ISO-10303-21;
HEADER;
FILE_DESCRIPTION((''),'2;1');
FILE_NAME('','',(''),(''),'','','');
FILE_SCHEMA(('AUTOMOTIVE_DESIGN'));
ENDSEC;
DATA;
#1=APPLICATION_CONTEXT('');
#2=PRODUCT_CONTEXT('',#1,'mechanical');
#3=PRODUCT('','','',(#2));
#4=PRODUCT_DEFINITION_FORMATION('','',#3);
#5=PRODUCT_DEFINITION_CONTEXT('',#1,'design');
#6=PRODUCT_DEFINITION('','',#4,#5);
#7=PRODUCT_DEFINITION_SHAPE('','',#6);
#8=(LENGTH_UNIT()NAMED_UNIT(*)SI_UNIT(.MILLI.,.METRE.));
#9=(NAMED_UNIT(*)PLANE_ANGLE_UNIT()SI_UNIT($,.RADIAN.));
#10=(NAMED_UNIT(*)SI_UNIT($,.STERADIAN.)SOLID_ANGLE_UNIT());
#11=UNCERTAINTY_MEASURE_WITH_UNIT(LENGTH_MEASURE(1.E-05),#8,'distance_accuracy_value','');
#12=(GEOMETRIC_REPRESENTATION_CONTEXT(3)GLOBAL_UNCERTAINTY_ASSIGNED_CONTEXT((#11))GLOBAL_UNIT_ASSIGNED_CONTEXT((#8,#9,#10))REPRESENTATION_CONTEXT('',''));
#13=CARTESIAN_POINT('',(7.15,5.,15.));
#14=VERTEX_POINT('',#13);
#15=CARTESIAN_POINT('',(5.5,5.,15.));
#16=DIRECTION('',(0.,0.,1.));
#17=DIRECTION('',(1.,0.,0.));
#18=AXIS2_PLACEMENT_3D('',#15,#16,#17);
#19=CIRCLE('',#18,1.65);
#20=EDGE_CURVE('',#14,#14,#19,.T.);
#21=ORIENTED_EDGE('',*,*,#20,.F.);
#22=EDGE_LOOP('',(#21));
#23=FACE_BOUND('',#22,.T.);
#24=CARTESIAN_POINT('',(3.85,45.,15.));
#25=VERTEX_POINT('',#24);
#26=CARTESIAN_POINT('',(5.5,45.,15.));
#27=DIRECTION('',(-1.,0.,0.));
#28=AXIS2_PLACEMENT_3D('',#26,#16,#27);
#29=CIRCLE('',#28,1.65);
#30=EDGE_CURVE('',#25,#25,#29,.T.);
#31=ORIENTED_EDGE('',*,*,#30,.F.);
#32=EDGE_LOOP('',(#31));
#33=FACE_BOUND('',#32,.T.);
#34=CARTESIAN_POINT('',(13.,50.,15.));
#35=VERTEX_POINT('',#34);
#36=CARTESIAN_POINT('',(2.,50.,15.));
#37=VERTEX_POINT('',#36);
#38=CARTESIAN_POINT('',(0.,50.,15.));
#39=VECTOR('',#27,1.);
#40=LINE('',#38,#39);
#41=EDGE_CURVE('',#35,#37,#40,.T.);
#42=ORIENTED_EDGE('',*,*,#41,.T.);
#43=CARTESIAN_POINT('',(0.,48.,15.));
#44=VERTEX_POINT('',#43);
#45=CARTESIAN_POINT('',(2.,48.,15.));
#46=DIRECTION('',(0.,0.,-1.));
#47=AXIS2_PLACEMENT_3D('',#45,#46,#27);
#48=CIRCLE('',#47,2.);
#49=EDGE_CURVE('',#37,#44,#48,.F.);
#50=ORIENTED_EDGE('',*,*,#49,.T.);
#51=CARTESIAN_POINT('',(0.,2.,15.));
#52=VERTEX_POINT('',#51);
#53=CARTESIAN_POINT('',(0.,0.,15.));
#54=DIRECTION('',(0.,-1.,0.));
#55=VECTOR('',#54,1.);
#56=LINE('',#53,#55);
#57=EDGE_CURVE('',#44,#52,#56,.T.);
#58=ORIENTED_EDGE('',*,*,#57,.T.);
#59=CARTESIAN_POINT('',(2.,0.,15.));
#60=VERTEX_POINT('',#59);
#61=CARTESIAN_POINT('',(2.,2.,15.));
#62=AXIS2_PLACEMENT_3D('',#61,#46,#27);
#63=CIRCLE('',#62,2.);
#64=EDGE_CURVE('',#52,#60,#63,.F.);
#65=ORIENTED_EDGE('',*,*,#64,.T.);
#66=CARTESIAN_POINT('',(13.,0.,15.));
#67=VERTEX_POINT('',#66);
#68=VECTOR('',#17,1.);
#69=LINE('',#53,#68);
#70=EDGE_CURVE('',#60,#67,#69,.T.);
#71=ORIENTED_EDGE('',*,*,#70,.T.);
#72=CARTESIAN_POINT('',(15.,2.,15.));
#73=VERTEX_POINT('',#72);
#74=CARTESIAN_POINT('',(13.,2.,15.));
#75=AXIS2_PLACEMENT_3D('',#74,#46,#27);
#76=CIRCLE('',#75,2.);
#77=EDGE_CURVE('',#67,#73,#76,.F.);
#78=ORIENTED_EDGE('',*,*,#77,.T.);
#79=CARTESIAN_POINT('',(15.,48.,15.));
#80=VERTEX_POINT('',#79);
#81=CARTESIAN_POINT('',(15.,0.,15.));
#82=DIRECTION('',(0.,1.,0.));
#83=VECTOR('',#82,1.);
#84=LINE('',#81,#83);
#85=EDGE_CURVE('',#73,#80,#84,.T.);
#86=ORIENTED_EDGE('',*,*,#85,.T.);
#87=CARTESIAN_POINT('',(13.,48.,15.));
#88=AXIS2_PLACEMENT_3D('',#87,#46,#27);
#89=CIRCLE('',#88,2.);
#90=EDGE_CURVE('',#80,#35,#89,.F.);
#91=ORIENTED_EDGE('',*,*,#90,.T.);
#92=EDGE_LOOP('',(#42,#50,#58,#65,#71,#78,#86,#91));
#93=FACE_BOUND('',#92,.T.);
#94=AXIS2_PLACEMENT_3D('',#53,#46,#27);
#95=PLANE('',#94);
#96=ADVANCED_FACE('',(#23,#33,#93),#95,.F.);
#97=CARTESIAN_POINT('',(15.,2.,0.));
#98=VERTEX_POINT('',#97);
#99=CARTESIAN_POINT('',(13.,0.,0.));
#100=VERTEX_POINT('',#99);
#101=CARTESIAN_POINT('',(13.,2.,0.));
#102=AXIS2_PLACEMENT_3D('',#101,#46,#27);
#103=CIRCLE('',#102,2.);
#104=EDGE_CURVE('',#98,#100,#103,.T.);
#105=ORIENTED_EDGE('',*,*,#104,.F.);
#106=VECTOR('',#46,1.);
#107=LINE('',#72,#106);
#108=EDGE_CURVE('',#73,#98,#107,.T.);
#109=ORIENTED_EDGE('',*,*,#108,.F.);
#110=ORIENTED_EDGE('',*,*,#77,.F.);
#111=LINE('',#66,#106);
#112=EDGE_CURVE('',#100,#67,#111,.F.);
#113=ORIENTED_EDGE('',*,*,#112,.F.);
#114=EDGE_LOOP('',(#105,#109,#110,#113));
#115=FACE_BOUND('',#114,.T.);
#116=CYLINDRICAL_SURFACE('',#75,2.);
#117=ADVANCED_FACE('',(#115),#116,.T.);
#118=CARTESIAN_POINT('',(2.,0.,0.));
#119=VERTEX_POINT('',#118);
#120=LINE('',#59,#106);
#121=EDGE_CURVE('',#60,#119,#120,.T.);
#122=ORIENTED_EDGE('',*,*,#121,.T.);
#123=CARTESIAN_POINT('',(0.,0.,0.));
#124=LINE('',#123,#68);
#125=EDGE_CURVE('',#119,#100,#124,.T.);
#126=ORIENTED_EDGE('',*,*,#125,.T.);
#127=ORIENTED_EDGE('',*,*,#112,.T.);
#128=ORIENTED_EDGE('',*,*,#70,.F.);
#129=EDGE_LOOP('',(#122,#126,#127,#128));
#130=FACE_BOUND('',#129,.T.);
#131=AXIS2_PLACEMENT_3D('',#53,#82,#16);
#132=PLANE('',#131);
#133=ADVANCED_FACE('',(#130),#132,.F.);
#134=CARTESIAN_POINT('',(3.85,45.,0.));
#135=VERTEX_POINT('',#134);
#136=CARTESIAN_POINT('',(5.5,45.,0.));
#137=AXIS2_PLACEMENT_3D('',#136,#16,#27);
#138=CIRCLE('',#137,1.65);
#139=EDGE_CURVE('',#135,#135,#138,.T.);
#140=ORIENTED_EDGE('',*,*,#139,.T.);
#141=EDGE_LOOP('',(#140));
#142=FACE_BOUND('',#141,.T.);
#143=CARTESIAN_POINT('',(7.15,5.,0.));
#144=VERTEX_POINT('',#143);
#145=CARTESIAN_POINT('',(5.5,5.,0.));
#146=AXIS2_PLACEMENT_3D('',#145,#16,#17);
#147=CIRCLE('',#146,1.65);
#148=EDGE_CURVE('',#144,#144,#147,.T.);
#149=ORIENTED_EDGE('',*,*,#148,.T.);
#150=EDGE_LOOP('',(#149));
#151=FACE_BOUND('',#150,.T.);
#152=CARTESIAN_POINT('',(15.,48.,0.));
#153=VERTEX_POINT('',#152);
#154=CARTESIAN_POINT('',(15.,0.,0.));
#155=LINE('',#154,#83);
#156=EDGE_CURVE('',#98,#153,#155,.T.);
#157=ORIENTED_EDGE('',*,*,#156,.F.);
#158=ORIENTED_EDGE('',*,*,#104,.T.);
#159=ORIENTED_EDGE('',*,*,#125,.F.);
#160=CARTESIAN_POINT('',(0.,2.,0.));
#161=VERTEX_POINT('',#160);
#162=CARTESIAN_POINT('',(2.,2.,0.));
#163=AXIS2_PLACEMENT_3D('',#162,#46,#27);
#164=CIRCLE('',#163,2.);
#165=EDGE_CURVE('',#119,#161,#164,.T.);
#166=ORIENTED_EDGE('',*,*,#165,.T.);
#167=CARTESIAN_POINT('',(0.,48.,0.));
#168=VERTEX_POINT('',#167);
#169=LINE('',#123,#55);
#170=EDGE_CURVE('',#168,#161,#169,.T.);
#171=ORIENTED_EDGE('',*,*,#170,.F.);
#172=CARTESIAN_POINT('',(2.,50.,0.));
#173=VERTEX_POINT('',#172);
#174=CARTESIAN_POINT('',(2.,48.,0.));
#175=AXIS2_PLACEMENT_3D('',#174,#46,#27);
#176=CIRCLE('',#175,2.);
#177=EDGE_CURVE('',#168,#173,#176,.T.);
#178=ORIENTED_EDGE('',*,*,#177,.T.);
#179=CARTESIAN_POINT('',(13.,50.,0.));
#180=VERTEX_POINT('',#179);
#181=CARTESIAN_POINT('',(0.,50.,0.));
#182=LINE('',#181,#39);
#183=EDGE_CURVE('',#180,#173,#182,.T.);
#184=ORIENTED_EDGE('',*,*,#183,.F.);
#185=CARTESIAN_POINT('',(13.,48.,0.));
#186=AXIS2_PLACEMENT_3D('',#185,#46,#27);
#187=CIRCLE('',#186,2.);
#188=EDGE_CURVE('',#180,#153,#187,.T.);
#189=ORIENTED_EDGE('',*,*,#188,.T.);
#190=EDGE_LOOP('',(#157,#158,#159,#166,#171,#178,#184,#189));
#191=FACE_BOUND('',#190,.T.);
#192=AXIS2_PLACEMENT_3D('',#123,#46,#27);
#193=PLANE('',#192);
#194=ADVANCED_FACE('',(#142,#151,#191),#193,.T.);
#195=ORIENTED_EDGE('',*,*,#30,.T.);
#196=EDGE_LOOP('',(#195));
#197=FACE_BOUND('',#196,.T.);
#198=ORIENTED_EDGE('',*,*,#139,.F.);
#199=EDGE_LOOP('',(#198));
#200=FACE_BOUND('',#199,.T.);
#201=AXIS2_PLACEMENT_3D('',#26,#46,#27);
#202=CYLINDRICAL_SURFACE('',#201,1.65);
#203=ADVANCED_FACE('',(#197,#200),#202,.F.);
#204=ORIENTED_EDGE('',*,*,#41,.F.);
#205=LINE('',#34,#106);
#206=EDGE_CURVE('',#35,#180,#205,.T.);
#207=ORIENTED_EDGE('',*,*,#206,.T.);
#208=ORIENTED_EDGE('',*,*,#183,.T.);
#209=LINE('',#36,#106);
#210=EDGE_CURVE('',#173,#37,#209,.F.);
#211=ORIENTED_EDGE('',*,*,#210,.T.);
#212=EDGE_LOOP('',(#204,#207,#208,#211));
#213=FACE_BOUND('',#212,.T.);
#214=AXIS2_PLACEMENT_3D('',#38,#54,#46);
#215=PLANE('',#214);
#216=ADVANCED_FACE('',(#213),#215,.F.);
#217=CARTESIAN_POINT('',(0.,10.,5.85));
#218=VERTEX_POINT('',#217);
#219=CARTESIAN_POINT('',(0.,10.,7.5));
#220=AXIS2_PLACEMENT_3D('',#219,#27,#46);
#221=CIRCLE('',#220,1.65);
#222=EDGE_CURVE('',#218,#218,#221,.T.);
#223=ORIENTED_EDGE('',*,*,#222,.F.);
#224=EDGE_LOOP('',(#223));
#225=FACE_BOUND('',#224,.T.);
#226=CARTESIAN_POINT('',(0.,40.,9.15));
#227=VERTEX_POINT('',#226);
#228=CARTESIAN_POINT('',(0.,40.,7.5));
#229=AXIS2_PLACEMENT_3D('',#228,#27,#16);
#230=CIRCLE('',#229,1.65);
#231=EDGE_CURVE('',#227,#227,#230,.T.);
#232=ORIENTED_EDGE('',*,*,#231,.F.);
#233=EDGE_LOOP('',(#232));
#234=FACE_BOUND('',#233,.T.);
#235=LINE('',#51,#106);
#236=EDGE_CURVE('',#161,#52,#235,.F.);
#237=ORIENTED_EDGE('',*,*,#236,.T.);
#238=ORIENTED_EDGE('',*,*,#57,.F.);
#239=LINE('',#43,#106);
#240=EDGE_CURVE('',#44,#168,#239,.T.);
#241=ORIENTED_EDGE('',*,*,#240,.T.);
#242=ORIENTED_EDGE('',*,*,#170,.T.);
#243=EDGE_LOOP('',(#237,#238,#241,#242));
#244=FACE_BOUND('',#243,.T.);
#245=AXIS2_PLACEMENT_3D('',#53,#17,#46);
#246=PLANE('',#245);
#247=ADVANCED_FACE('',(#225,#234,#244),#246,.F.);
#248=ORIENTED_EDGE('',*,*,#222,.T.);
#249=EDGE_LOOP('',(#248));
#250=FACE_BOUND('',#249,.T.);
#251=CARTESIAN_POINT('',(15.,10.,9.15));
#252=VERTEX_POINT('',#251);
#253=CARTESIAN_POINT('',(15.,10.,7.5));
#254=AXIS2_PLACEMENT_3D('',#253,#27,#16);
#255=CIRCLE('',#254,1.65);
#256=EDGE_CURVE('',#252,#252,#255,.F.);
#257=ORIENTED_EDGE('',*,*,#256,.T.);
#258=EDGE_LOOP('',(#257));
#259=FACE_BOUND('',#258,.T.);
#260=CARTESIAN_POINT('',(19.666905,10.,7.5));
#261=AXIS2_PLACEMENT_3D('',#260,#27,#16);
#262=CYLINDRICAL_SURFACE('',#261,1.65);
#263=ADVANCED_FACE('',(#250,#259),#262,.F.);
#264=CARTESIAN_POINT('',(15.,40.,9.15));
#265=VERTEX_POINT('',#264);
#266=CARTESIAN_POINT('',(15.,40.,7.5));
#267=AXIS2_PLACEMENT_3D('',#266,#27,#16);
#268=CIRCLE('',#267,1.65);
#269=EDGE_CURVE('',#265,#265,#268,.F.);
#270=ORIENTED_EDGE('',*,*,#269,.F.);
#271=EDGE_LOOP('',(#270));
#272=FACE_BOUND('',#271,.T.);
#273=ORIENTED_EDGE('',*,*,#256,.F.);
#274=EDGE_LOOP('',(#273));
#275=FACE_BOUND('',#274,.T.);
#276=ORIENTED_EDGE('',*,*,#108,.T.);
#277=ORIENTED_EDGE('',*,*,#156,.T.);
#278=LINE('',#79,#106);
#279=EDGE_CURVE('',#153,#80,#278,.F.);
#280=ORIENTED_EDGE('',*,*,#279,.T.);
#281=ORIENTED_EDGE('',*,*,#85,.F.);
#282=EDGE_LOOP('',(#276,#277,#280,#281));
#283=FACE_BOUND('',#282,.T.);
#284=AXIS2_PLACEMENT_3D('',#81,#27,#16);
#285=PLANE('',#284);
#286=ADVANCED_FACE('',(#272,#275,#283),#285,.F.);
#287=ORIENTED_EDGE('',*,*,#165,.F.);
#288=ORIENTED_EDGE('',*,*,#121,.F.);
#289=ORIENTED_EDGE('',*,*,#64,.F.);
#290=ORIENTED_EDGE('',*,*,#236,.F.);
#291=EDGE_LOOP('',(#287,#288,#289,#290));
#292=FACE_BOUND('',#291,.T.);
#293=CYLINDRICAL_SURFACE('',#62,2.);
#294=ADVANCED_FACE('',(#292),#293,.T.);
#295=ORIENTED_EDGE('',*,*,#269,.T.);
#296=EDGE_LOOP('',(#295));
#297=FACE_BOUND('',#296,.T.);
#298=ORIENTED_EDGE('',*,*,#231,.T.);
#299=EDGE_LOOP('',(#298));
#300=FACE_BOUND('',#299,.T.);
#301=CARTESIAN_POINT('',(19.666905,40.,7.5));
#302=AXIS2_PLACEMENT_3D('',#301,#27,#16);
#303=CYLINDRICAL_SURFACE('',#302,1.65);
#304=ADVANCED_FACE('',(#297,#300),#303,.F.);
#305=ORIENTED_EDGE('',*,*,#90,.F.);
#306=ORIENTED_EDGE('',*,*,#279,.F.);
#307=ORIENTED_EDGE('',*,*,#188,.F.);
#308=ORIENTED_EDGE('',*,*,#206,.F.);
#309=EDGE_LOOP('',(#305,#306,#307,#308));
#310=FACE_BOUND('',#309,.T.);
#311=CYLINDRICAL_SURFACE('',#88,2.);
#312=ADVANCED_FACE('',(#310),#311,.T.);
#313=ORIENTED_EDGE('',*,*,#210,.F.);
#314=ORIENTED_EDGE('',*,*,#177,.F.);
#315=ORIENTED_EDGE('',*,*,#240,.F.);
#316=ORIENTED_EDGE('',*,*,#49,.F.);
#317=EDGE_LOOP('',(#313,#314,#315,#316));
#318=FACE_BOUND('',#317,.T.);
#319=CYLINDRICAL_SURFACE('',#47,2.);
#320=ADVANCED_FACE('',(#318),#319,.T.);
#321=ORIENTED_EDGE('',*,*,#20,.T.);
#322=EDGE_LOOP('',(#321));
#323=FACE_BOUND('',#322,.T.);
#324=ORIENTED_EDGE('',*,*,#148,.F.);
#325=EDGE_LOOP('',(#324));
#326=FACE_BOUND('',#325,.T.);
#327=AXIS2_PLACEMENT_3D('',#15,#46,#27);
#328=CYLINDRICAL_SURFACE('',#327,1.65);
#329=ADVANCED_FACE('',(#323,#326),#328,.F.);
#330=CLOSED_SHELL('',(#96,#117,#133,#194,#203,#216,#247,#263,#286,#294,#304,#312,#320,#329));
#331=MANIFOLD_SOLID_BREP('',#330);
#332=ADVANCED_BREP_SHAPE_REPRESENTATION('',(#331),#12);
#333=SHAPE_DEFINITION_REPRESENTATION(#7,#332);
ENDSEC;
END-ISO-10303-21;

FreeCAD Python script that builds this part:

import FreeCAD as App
import Part
import Sketcher

V = App.Vector


def edges_at(feature, points):
    """Names of the edges that pass closest to the given points."""
    edges = feature.Shape.Edges
    near = lambda p: min(range(len(edges)), key=lambda i: edges[i].distToShape(Part.Vertex(*p))[0])
    return sorted({f"Edge{near(p) + 1}" for p in points})

doc = App.newDocument("Part")
params = doc.addObject("Spreadsheet::Sheet", "Params")
for row, (alias, value) in enumerate([
    ("sketch1_diameter", "3.3 mm"),
    ("sketch1_width", "15 mm"),
    ("sketch1_height", "50 mm"),
    ("pad1_length", "15 mm"),
    ("sketch2_diameter", "3.3 mm"),
    ("pocket1_length", "15 mm"),
    ("fillet_radius", "2 mm"),
], start=1):
    params.set(f"A{row}", alias)
    params.set(f"B{row}", "=" + value)
    params.setAlias(f"B{row}", alias)

body = doc.addObject("PartDesign::Body", "Body")

# Sketch on XY plane
sketch1 = doc.addObject("Sketcher::SketchObject", "Sketch")
body.addObject(sketch1)
sketch1.AttachmentSupport = (doc.XY_Plane, [""])
sketch1.MapMode = "FlatFace"
sketch1.addGeometry([
    Part.LineSegment(V(0, 50, 0), V(0, 0, 0)),  # 0
    Part.LineSegment(V(0, 0, 0), V(15, 0, 0)),  # 1
    Part.LineSegment(V(15, 0, 0), V(15, 50, 0)),  # 2
    Part.LineSegment(V(15, 50, 0), V(0, 50, 0)),  # 3
    Part.Circle(V(5.5, 5, 0), V(0, 0, 1), 1.6),  # 4
    Part.Circle(V(5.5, 45, 0), V(0, 0, 1), 1.6),  # 5
], False)
sketch1.addConstraint([
    Sketcher.Constraint("Coincident", 0, 2, 1, 1),
    Sketcher.Constraint("Coincident", 1, 2, 2, 1),
    Sketcher.Constraint("Coincident", 2, 2, 3, 1),
    Sketcher.Constraint("Coincident", 3, 2, 0, 1),
    Sketcher.Constraint("Vertical", 0),
    Sketcher.Constraint("Horizontal", 1),
    Sketcher.Constraint("Vertical", 2),
    Sketcher.Constraint("Horizontal", 3),
    Sketcher.Constraint("Coincident", 0, 2, -1, 1),
    Sketcher.Constraint("Equal", 4, 5),
    Sketcher.Constraint("Vertical", 4, 3, 5, 3),
    Sketcher.Constraint("Diameter", 4, 3.3),
    Sketcher.Constraint("DistanceX", 1, 1, 1, 2, 15.0),
    Sketcher.Constraint("DistanceY", 0, 2, 0, 1, 50.0),
    Sketcher.Constraint("DistanceY", -1, 1, 4, 3, 5.0),
    Sketcher.Constraint("DistanceY", -1, 1, 5, 3, 45.0),
    Sketcher.Constraint("DistanceX", -1, 1, 4, 3, 5.5),
])
sketch1.setExpression("Constraints[11]", "Params.sketch1_diameter")
sketch1.setExpression("Constraints[12]", "Params.sketch1_width")
sketch1.setExpression("Constraints[13]", "Params.sketch1_height")
pad1 = doc.addObject("PartDesign::Pad", "Pad")
body.addObject(pad1)
pad1.Profile = sketch1
pad1.setExpression("Length", "Params.pad1_length")

# Sketch on YZ plane
sketch2 = doc.addObject("Sketcher::SketchObject", "Sketch001")
body.addObject(sketch2)
sketch2.AttachmentSupport = (doc.YZ_Plane, [""])
sketch2.MapMode = "FlatFace"
sketch2.addGeometry([
    Part.Circle(V(40, 7.5, 0), V(0, 0, 1), 1.6),
    Part.Circle(V(10, 7.5, 0), V(0, 0, 1), 1.6),
], False)
sketch2.addConstraint([
    Sketcher.Constraint("Equal", 0, 1),
    Sketcher.Constraint("Horizontal", 0, 3, 1, 3),
    Sketcher.Constraint("Diameter", 0, 3.3),
    Sketcher.Constraint("DistanceX", -1, 1, 0, 3, 40.0),
    Sketcher.Constraint("DistanceX", -1, 1, 1, 3, 10.0),
    Sketcher.Constraint("DistanceY", -1, 1, 0, 3, 7.5),
])
sketch2.setExpression("Constraints[2]", "Params.sketch2_diameter")
pocket1 = doc.addObject("PartDesign::Pocket", "Pocket")
body.addObject(pocket1)
pocket1.Profile = sketch2
pocket1.setExpression("Length", "Params.pocket1_length")
pocket1.Reversed = True
doc.recompute()

fillet = doc.addObject("PartDesign::Fillet", "Fillet")
body.addObject(fillet)
fillet.Base = (pocket1, edges_at(pocket1, [
    (0, 50, 7.5),
    (15, 50, 7.5),
    (15, 0, 7.5),
    (0, 0, 7.5),
]))
fillet.setExpression("Radius", "Params.fillet_radius")

doc.recompute()
